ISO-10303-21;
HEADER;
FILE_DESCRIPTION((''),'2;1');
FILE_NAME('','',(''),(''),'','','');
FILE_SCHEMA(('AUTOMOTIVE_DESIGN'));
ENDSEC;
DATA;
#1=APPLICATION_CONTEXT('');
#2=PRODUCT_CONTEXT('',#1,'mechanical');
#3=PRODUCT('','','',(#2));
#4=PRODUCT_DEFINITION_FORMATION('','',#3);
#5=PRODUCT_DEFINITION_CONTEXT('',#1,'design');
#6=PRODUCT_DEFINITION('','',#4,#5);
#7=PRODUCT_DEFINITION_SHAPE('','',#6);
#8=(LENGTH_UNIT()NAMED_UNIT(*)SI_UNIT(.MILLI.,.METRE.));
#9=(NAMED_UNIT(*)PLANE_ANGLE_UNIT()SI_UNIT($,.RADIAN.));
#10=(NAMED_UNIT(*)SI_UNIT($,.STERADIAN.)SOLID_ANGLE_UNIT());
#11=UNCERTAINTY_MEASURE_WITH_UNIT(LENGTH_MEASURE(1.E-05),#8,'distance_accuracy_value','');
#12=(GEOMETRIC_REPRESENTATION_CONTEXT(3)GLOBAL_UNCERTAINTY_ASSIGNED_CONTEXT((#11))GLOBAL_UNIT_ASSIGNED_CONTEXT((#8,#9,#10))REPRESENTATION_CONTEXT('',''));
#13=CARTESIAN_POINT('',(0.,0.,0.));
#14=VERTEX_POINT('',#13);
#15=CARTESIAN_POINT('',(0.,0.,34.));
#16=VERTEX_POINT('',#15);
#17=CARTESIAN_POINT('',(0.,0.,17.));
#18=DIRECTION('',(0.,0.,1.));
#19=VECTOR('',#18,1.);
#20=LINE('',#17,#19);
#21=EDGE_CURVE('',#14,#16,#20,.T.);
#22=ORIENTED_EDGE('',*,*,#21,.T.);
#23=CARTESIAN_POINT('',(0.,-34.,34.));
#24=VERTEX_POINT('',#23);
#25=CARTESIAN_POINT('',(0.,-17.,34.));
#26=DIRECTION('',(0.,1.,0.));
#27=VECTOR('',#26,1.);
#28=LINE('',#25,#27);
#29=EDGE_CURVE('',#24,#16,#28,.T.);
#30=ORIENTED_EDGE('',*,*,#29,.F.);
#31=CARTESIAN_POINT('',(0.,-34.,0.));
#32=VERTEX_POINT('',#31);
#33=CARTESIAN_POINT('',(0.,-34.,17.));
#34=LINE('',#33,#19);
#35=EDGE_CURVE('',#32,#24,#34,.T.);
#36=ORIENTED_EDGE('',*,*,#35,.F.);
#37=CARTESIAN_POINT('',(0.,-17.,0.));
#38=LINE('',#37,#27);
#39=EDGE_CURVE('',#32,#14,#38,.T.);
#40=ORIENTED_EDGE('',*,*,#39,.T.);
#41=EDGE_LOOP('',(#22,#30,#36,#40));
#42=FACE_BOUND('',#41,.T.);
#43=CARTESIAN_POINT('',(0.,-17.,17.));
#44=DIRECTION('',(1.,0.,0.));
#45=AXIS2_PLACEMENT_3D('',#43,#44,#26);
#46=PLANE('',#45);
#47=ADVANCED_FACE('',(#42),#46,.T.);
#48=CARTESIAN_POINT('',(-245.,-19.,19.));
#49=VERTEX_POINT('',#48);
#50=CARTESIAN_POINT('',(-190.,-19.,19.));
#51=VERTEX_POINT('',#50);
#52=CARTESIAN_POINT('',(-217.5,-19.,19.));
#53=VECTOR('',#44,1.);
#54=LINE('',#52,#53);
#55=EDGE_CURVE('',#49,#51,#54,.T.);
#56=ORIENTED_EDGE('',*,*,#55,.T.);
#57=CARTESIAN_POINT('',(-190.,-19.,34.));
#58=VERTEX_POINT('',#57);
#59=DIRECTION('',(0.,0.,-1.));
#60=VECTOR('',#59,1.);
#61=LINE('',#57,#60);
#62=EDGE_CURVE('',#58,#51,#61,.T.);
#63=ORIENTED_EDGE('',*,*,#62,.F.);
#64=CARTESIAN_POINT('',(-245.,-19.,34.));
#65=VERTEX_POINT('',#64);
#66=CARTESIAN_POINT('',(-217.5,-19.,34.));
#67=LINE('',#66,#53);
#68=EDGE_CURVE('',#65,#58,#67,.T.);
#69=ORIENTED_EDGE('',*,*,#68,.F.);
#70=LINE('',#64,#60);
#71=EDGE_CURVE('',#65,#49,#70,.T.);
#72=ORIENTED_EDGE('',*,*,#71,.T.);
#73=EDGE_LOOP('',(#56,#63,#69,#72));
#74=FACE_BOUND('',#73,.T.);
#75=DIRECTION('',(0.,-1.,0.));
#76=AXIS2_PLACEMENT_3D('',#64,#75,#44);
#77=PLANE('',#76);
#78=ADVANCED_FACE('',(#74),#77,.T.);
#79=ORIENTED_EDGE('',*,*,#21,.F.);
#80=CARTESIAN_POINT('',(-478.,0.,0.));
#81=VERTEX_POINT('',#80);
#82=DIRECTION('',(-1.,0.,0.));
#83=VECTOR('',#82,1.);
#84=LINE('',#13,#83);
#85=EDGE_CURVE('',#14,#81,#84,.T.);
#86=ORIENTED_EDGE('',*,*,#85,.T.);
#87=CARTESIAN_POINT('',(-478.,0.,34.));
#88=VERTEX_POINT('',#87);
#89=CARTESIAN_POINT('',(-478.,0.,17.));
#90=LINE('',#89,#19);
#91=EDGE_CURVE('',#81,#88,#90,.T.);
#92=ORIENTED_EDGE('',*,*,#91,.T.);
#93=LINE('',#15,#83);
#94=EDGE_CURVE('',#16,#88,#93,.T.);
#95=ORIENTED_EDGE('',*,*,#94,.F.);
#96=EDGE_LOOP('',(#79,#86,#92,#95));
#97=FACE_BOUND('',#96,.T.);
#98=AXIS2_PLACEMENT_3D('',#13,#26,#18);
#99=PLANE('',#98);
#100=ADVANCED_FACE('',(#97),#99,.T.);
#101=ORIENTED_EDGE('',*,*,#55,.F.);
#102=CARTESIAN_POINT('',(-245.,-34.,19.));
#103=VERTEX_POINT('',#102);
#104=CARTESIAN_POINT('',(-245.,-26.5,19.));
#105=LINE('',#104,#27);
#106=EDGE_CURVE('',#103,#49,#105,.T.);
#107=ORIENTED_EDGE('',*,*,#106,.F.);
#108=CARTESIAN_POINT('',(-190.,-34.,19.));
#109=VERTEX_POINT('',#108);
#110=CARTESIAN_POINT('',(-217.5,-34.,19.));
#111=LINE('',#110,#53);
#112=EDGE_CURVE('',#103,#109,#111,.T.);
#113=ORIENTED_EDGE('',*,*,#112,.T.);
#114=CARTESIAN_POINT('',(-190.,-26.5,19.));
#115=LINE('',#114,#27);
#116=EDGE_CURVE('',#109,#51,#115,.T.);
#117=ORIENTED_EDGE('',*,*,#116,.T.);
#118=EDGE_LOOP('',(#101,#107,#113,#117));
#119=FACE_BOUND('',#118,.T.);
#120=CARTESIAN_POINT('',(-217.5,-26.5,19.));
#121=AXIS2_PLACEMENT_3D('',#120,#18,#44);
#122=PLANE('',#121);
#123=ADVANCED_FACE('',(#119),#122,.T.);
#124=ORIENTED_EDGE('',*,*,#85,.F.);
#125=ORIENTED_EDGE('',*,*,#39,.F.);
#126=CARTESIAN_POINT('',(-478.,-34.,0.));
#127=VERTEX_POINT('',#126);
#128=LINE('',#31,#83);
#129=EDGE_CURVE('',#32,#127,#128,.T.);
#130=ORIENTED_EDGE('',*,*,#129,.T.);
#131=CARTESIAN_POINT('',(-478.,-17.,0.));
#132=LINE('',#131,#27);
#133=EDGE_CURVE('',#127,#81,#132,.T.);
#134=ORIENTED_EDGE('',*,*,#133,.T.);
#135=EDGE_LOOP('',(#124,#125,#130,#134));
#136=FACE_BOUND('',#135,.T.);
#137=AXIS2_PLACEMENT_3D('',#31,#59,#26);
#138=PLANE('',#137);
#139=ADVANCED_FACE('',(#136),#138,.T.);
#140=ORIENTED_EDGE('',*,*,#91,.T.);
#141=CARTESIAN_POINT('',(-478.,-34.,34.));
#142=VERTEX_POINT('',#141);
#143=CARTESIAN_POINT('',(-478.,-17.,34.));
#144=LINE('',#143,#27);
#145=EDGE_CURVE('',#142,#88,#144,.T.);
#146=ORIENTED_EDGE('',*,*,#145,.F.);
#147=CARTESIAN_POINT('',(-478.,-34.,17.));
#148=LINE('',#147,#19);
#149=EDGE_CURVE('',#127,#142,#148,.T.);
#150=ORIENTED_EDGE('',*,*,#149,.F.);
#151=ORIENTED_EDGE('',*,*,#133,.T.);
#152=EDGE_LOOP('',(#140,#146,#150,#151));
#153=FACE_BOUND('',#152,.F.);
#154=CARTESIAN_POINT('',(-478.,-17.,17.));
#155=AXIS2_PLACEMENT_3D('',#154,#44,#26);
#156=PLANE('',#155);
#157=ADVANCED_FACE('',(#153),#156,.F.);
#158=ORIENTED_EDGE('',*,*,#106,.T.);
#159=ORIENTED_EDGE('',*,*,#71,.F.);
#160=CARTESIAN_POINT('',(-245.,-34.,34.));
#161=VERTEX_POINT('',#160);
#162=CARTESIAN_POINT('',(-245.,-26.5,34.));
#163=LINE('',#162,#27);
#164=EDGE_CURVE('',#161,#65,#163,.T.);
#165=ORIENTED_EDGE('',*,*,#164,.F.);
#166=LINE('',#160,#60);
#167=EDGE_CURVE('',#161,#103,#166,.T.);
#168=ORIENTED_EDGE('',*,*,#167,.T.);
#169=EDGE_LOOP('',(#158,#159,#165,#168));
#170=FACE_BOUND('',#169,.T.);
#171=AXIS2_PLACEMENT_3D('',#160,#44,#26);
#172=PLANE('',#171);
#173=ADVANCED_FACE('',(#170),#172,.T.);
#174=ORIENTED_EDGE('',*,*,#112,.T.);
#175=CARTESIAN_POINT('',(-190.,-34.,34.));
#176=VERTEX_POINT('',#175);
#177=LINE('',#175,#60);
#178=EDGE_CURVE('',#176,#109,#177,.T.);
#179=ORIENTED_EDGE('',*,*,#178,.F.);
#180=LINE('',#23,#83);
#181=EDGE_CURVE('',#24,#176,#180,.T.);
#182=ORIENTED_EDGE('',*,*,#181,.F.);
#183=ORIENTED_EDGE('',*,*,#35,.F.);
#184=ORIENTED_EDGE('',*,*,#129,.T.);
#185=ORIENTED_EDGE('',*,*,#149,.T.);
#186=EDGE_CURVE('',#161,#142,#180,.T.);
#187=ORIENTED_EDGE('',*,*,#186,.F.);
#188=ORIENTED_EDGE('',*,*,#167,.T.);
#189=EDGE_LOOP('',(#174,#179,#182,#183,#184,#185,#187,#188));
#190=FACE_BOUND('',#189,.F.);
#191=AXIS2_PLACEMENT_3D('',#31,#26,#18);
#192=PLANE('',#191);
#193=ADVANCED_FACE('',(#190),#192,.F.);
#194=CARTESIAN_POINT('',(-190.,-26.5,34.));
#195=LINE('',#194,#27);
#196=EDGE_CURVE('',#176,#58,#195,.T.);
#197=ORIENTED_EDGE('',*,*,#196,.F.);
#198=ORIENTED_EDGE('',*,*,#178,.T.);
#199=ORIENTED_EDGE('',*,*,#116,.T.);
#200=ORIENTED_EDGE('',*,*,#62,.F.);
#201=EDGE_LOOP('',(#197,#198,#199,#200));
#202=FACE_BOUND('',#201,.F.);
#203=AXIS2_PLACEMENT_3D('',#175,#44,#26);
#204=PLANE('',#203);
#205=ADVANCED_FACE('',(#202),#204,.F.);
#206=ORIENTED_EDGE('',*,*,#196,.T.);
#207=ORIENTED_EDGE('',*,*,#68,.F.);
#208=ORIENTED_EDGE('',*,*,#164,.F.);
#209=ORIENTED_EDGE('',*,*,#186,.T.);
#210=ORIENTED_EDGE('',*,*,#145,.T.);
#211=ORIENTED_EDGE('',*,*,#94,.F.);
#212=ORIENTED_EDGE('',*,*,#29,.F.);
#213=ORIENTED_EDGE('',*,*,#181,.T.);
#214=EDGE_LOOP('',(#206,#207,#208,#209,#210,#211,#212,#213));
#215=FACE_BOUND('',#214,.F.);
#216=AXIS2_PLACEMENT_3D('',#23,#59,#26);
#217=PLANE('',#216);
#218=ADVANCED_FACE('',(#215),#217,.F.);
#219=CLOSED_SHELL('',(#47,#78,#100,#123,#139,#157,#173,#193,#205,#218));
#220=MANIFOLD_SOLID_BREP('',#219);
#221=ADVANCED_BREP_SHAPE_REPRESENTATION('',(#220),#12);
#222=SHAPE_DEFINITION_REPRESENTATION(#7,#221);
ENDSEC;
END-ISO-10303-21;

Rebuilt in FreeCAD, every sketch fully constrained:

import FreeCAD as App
import Part
import Sketcher


def add_polygon(sketch, points):
    """Adds a closed chain of lines whose ends are joined by coincident constraints."""
    first, n = sketch.GeometryCount, len(points)
    for a, b in zip(points, points[1:] + points[:1]):
        sketch.addGeometry(Part.LineSegment(App.Vector(*a, 0), App.Vector(*b, 0)), False)
    for i in range(n):
        sketch.addConstraint(Sketcher.Constraint("Coincident", first + i, 2, first + (i + 1) % n, 1))

doc = App.newDocument("Part")
body = doc.addObject("PartDesign::Body", "Body")

sketch1 = doc.addObject("Sketcher::SketchObject", "Sketch")
body.addObject(sketch1)
sketch1.AttachmentSupport = (doc.YZ_Plane, [""])
sketch1.MapMode = "FlatFace"
add_polygon(sketch1, [(-34, 34), (-34, 0), (0, 0), (0, 34)])
sketch1.addConstraint([
    Sketcher.Constraint("Vertical", 0),
    Sketcher.Constraint("Horizontal", 1),
    Sketcher.Constraint("Vertical", 2),
    Sketcher.Constraint("Horizontal", 3),
    Sketcher.Constraint("Coincident", 1, 2, -1, 1),
    Sketcher.Constraint("Equal", 3, 0),
    Sketcher.Constraint("DistanceX", 1, 1, 1, 2, 34.0),
])
pad1 = doc.addObject("PartDesign::Pad", "Pad")
body.addObject(pad1)
pad1.Profile = sketch1
pad1.Length = 478
pad1.Reversed = True

sketch2 = doc.addObject("Sketcher::SketchObject", "Sketch001")
body.addObject(sketch2)
sketch2.AttachmentSupport = (doc.XY_Plane, [""])
sketch2.MapMode = "FlatFace"
sketch2.AttachmentOffset = App.Placement(App.Vector(0, 0, 34), App.Rotation())
add_polygon(sketch2, [(-245, -19), (-245, -34), (-190, -34), (-190, -19)])
sketch2.addConstraint([
    Sketcher.Constraint("Vertical", 0),
    Sketcher.Constraint("Horizontal", 1),
    Sketcher.Constraint("Vertical", 2),
    Sketcher.Constraint("Horizontal", 3),
    Sketcher.Constraint("DistanceX", 1, 1, 1, 2, 55.0),
    Sketcher.Constraint("DistanceY", 0, 2, 0, 1, 15.0),
    Sketcher.Constraint("DistanceX", 0, 2, -1, 1, 245.0),
    Sketcher.Constraint("DistanceY", 0, 2, -1, 1, 34.0),
])
pocket1 = doc.addObject("PartDesign::Pocket", "Pocket")
body.addObject(pocket1)
pocket1.Profile = sketch2
pocket1.Length = 15

doc.recompute()
